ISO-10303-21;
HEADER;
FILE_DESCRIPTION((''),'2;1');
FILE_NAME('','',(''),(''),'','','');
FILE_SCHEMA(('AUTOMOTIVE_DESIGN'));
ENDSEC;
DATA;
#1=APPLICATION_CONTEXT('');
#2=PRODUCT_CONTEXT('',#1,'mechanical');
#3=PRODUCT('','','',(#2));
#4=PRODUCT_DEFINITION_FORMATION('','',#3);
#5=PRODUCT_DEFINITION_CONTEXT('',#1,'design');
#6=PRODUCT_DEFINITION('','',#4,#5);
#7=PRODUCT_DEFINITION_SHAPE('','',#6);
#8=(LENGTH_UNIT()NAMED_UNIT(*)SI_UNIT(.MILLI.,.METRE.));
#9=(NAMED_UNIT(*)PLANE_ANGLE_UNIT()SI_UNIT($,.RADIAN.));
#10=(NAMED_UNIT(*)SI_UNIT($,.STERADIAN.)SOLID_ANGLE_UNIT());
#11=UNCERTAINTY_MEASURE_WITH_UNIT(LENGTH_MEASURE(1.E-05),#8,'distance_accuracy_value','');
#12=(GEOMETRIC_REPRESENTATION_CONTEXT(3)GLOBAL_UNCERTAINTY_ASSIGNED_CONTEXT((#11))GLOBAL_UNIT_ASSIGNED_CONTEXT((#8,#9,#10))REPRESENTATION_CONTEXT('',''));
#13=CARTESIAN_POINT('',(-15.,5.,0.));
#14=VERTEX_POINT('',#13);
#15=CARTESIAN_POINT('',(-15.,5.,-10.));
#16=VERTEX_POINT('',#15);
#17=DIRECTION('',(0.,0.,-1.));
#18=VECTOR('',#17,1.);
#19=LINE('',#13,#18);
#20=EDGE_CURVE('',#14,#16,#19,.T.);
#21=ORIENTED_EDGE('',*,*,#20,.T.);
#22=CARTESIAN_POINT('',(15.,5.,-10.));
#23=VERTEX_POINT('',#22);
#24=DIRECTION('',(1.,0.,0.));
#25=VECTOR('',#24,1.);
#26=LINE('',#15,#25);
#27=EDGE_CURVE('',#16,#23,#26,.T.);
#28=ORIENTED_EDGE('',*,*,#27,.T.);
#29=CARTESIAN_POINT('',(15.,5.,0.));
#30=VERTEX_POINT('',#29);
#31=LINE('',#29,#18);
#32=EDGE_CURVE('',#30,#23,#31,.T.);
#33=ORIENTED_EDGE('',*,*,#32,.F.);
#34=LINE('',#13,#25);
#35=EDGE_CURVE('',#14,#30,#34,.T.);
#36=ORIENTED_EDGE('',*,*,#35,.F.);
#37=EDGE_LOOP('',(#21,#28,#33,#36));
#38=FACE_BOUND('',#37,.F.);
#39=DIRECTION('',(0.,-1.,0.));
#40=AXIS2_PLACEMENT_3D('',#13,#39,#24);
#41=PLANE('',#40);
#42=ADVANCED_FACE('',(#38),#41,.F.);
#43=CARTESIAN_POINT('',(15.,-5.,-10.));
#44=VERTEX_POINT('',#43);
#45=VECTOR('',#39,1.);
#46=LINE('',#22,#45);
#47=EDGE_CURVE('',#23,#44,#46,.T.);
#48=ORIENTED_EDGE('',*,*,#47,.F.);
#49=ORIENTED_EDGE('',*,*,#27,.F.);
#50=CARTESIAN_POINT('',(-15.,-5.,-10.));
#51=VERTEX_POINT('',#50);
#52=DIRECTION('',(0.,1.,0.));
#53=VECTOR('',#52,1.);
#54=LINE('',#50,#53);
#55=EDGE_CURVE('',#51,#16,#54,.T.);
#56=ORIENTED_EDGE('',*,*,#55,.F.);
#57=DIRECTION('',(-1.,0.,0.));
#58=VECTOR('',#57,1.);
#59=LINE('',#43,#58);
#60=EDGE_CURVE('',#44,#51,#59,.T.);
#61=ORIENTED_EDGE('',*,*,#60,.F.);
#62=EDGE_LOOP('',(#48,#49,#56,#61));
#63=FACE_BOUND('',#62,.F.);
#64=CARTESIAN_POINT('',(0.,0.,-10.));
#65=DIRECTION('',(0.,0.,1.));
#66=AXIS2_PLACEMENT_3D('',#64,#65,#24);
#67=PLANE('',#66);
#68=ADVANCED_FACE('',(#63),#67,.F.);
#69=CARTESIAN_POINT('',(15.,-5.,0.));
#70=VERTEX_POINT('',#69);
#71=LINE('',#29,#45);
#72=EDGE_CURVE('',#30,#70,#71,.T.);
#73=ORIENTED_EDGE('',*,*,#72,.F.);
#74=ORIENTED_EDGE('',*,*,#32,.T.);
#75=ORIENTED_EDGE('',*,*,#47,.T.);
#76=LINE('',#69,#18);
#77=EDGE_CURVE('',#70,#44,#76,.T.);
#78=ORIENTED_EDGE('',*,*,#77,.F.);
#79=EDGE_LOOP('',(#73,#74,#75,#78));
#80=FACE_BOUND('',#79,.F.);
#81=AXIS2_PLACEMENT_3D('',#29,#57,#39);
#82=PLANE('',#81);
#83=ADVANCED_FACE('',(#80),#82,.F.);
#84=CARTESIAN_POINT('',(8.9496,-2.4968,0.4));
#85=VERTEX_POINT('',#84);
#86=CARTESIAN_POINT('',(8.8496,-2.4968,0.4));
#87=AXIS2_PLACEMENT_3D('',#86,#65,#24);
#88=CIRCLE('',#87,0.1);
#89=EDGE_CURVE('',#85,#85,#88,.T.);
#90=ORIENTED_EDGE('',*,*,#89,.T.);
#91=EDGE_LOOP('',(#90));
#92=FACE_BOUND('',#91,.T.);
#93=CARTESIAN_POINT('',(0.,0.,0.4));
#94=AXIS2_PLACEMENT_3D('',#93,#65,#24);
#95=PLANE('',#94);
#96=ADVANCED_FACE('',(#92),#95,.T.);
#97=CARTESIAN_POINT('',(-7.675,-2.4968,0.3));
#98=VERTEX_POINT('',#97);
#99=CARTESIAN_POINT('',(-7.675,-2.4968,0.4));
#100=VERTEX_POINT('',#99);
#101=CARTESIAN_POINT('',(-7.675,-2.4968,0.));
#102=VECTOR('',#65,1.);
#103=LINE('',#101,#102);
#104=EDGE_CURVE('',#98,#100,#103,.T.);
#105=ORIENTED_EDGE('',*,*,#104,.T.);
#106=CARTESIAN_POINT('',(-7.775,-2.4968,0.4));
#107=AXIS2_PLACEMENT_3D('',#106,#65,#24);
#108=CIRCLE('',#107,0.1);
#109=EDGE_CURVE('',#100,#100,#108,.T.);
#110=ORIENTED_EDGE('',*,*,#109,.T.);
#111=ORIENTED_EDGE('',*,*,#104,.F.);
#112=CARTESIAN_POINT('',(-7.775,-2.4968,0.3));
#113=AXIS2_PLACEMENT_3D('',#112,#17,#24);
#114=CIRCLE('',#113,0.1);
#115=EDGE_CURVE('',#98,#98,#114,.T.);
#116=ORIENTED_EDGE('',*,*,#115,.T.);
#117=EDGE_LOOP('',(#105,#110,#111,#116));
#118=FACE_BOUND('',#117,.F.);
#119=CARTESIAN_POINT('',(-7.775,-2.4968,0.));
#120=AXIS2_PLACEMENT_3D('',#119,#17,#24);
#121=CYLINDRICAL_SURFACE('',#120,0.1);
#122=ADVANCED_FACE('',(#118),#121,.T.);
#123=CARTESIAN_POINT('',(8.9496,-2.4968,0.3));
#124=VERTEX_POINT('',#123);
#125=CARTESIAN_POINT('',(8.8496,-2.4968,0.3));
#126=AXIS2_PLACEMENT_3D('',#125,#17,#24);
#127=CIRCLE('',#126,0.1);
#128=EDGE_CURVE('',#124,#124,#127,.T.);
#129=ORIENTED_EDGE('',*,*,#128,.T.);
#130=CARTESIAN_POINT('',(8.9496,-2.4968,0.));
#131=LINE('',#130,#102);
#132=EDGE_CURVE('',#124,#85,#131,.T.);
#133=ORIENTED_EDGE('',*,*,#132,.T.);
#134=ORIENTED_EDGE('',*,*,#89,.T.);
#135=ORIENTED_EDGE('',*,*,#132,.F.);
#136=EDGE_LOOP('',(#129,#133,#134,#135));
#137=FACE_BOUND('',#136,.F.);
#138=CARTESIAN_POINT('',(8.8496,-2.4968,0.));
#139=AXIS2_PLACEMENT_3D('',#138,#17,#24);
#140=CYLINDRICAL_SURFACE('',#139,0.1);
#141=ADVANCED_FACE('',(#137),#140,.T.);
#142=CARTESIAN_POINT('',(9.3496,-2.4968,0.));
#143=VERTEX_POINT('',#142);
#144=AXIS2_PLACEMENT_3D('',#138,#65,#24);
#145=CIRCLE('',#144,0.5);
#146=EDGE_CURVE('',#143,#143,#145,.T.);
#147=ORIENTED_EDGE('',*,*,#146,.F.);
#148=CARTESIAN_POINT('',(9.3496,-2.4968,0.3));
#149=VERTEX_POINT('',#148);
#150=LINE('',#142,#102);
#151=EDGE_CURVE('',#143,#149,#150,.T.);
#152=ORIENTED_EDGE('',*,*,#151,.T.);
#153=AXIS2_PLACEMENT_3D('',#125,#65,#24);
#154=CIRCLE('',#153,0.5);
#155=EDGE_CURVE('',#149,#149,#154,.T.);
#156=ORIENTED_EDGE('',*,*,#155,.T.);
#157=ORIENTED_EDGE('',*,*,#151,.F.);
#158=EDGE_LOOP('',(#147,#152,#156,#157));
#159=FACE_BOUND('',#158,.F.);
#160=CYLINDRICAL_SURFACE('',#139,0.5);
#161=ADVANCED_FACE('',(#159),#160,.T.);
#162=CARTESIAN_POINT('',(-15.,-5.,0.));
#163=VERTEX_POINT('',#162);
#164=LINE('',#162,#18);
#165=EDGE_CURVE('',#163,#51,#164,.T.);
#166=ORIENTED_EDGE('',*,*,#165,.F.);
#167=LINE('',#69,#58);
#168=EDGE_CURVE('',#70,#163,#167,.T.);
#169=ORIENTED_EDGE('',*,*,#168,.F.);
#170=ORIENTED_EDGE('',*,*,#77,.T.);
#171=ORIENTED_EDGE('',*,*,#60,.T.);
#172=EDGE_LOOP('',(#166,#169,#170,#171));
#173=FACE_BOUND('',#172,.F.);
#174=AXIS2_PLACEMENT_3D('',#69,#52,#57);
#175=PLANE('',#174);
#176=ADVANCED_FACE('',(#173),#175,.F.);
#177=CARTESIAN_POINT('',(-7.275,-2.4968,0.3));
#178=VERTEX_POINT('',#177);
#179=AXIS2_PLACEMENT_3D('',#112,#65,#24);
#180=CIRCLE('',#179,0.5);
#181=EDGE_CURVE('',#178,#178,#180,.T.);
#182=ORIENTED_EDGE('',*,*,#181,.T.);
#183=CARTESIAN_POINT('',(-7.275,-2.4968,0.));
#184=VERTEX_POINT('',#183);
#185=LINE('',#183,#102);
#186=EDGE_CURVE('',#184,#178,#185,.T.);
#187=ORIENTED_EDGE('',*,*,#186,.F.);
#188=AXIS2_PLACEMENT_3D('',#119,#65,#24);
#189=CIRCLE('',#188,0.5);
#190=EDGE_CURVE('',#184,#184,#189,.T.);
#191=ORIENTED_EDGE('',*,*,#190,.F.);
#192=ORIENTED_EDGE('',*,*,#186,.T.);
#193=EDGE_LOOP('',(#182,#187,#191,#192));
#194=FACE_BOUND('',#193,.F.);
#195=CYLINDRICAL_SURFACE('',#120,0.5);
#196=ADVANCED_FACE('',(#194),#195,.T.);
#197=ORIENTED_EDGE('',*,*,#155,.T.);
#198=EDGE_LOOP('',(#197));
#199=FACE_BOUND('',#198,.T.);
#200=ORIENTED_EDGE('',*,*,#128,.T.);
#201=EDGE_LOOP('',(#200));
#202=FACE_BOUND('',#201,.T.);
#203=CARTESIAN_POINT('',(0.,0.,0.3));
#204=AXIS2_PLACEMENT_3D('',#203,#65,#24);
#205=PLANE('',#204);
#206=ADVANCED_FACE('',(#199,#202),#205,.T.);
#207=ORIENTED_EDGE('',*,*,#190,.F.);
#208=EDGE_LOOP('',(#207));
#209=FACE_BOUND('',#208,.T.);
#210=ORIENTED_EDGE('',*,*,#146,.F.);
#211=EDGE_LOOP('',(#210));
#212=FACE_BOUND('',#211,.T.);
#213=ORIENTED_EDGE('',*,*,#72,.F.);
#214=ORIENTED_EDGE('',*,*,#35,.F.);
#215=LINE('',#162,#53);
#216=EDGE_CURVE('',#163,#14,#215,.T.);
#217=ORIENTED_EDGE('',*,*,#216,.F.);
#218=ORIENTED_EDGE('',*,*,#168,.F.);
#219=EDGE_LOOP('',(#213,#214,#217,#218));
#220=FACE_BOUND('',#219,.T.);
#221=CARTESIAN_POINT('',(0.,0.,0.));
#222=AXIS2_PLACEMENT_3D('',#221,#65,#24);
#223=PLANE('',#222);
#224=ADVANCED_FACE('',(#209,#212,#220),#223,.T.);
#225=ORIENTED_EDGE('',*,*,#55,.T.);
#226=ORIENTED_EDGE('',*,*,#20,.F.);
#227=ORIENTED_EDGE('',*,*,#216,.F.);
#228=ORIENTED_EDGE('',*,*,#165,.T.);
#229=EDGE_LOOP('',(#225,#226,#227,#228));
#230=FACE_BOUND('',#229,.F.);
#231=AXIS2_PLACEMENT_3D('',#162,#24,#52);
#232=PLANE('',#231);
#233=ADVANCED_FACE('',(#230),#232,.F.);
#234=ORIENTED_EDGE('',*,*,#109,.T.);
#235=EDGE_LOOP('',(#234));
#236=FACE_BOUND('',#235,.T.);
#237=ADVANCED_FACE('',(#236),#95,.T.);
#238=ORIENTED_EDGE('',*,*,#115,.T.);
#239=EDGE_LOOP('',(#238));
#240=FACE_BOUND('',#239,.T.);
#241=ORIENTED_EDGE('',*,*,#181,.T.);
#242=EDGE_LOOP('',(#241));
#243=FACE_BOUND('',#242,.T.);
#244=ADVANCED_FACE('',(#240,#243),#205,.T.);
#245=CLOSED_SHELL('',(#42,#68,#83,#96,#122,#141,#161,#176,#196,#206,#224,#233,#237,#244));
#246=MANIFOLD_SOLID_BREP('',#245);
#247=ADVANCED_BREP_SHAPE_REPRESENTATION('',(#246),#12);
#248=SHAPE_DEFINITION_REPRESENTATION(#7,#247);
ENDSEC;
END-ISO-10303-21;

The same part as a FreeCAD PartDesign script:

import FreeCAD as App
import Part
import Sketcher
from FreeCAD import Vector
Q = App.Units.Quantity

doc = App.newDocument("Part")
body = doc.addObject("PartDesign::Body", "Body")

sketch1 = doc.addObject("Sketcher::SketchObject", "Sketch")
body.addObject(sketch1)
sketch1.AttachmentSupport = (doc.XY_Plane, [""])
sketch1.MapMode = "FlatFace"
sketch1.addGeometry(Part.LineSegment(Vector(15, 5, 0), Vector(-15, 5, 0)), False)
sketch1.addGeometry(Part.LineSegment(Vector(-15, 5, 0), Vector(-15, -5, 0)), False)
sketch1.addGeometry(Part.LineSegment(Vector(-15, -5, 0), Vector(15, -5, 0)), False)
sketch1.addGeometry(Part.LineSegment(Vector(15, -5, 0), Vector(15, 5, 0)), False)
sketch1.addConstraint(Sketcher.Constraint("Coincident", 0, 2, 1, 1))
sketch1.addConstraint(Sketcher.Constraint("Coincident", 1, 2, 2, 1))
sketch1.addConstraint(Sketcher.Constraint("Coincident", 2, 2, 3, 1))
sketch1.addConstraint(Sketcher.Constraint("Coincident", 3, 2, 0, 1))
sketch1.addConstraint(Sketcher.Constraint("Horizontal", 0))
sketch1.addConstraint(Sketcher.Constraint("Vertical", 1))
sketch1.addConstraint(Sketcher.Constraint("Horizontal", 2))
sketch1.addConstraint(Sketcher.Constraint("Vertical", 3))
sketch1.addConstraint(Sketcher.Constraint("Symmetric", 0, 2, 2, 2, -1, 1))
sketch1.addConstraint(Sketcher.Constraint("DistanceX", 0, 2, 0, 1, Q("30 mm")))
sketch1.addConstraint(Sketcher.Constraint("DistanceY", 1, 2, 1, 1, Q("10 mm")))
pad1 = doc.addObject("PartDesign::Pad", "Pad")
body.addObject(pad1)
pad1.Profile = sketch1
pad1.Length = 10
pad1.Reversed = True

sketch2 = doc.addObject("Sketcher::SketchObject", "Sketch001")
body.addObject(sketch2)
sketch2.AttachmentSupport = (doc.XY_Plane, [""])
sketch2.MapMode = "FlatFace"
sketch2.addGeometry(Part.Circle(Vector(-7.8, -2.5, 0), Vector(0, 0, 1), 0.5), False)
sketch2.addGeometry(Part.Circle(Vector(8.8, -2.5, 0), Vector(0, 0, 1), 0.5), False)
sketch2.addConstraint(Sketcher.Constraint("Equal", 0, 1))
sketch2.addConstraint(Sketcher.Constraint("Horizontal", 0, 3, 1, 3))
sketch2.addConstraint(Sketcher.Constraint("Diameter", 0, Q("1 mm")))
sketch2.addConstraint(Sketcher.Constraint("DistanceX", 0, 3, -1, 1, Q("7.775 mm")))
sketch2.addConstraint(Sketcher.Constraint("DistanceY", 0, 3, -1, 1, Q("2.4968 mm")))
sketch2.addConstraint(Sketcher.Constraint("DistanceX", -1, 1, 1, 3, Q("8.8496 mm")))
pad2 = doc.addObject("PartDesign::Pad", "Pad001")
body.addObject(pad2)
pad2.Profile = sketch2
pad2.Length = 0.3

sketch3 = doc.addObject("Sketcher::SketchObject", "Sketch002")
body.addObject(sketch3)
sketch3.AttachmentSupport = (doc.XY_Plane, [""])
sketch3.MapMode = "FlatFace"
sketch3.addGeometry(Part.Circle(Vector(-7.78, -2.5, 0), Vector(0, 0, 1), 0.1), False)
sketch3.addGeometry(Part.Circle(Vector(8.85, -2.5, 0), Vector(0, 0, 1), 0.1), False)
sketch3.addConstraint(Sketcher.Constraint("Equal", 0, 1))
sketch3.addConstraint(Sketcher.Constraint("Horizontal", 0, 3, 1, 3))
sketch3.addConstraint(Sketcher.Constraint("Diameter", 0, Q("0.2 mm")))
sketch3.addConstraint(Sketcher.Constraint("DistanceX", 0, 3, -1, 1, Q("7.775 mm")))
sketch3.addConstraint(Sketcher.Constraint("DistanceY", 0, 3, -1, 1, Q("2.4968 mm")))
sketch3.addConstraint(Sketcher.Constraint("DistanceX", -1, 1, 1, 3, Q("8.8496 mm")))
pad3 = doc.addObject("PartDesign::Pad", "Pad002")
body.addObject(pad3)
pad3.Profile = sketch3
pad3.Length = 0.4

doc.recompute()
